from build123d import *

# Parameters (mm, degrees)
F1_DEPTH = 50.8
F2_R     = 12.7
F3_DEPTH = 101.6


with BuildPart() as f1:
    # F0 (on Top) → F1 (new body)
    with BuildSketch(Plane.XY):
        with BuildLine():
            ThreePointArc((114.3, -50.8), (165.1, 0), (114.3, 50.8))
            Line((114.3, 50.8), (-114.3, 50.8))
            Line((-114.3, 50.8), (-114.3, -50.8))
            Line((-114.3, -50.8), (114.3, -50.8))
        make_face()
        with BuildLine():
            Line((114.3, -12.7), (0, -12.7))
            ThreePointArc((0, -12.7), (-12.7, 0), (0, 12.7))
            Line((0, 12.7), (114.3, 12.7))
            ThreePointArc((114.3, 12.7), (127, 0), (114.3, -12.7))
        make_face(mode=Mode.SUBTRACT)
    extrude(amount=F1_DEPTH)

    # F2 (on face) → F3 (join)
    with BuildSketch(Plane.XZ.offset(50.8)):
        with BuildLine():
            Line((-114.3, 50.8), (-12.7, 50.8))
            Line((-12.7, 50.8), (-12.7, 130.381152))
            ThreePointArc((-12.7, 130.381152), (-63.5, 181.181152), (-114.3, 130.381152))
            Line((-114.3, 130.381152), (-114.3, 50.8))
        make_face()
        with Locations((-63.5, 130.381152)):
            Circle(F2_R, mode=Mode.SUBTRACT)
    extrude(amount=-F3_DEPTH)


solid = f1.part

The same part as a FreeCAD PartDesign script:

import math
import FreeCAD as App
import Part
import Sketcher
from FreeCAD import Vector
Q = App.Units.Quantity

doc = App.newDocument("Part")
body = doc.addObject("PartDesign::Body", "Body")

sketch1 = doc.addObject("Sketcher::SketchObject", "Sketch")
body.addObject(sketch1)
sketch1.AttachmentSupport = (doc.XY_Plane, [""])
sketch1.MapMode = "FlatFace"
sketch1.addGeometry(Part.ArcOfCircle(Part.Circle(Vector(114, 0, 0), Vector(0, 0, 1), 51), math.radians(-90), math.radians(90)), False)
sketch1.addGeometry(Part.LineSegment(Vector(114, 51, 0), Vector(-114, 51, 0)), False)
sketch1.addGeometry(Part.LineSegment(Vector(-114, 51, 0), Vector(-114, -51, 0)), False)
sketch1.addGeometry(Part.LineSegment(Vector(-114, -51, 0), Vector(114, -51, 0)), False)
sketch1.addGeometry(Part.ArcOfCircle(Part.Circle(Vector(114, 0, 0), Vector(0, 0, 1), 13), math.radians(-90), math.radians(90)), False)
sketch1.addGeometry(Part.LineSegment(Vector(114, -13, 0), Vector(0, -13, 0)), False)
sketch1.addGeometry(Part.ArcOfCircle(Part.Circle(Vector(0, 0, 0), Vector(0, 0, 1), 13), math.radians(90), math.radians(270)), False)
sketch1.addGeometry(Part.LineSegment(Vector(0, 13, 0), Vector(114, 13, 0)), False)
sketch1.addConstraint(Sketcher.Constraint("Tangent", 0, 2, 1, 1))
sketch1.addConstraint(Sketcher.Constraint("Coincident", 1, 2, 2, 1))
sketch1.addConstraint(Sketcher.Constraint("Coincident", 2, 2, 3, 1))
sketch1.addConstraint(Sketcher.Constraint("Tangent", 3, 2, 0, 1))
sketch1.addConstraint(Sketcher.Constraint("Tangent", 4, 1, 5, 1))
sketch1.addConstraint(Sketcher.Constraint("Tangent", 5, 2, 6, 2))
sketch1.addConstraint(Sketcher.Constraint("Tangent", 6, 1, 7, 1))
sketch1.addConstraint(Sketcher.Constraint("Tangent", 7, 2, 4, 2))
sketch1.addConstraint(Sketcher.Constraint("Horizontal", 1))
sketch1.addConstraint(Sketcher.Constraint("Vertical", 2))
sketch1.addConstraint(Sketcher.Constraint("Horizontal", 3))
sketch1.addConstraint(Sketcher.Constraint("Horizontal", 5))
sketch1.addConstraint(Sketcher.Constraint("Horizontal", 7))
sketch1.addConstraint(Sketcher.Constraint("Coincident", 6, 3, -1, 1))
sketch1.addConstraint(Sketcher.Constraint("Coincident", 4, 3, 0, 3))
sketch1.addConstraint(Sketcher.Constraint("Radius", 0, Q("2 in")))
sketch1.addConstraint(Sketcher.Constraint("Radius", 4, Q("0.5 in")))
sketch1.addConstraint(Sketcher.Constraint("DistanceX", 1, 2, 1, 1, Q("9 in")))
sketch1.addConstraint(Sketcher.Constraint("DistanceX", 5, 2, 5, 1, Q("4.5 in")))
pad1 = doc.addObject("PartDesign::Pad", "Pad")
body.addObject(pad1)
pad1.Profile = sketch1
pad1.Length = Q("2 in")

sketch2 = doc.addObject("Sketcher::SketchObject", "Sketch001")
body.addObject(sketch2)
sketch2.AttachmentSupport = (doc.XZ_Plane, [""])
sketch2.MapMode = "FlatFace"
sketch2.AttachmentOffset = App.Placement(Vector(0, 0, 2 * 25.4), App.Rotation())
sketch2.addGeometry(Part.LineSegment(Vector(-114, 51, 0), Vector(-13, 51, 0)), False)
sketch2.addGeometry(Part.LineSegment(Vector(-13, 51, 0), Vector(-13, 130, 0)), False)
sketch2.addGeometry(Part.ArcOfCircle(Part.Circle(Vector(-64, 130, 0), Vector(0, 0, 1), 51), math.radians(0), math.radians(180)), False)
sketch2.addGeometry(Part.LineSegment(Vector(-114, 130, 0), Vector(-114, 51, 0)), False)
sketch2.addGeometry(Part.Circle(Vector(-64, 130, 0), Vector(0, 0, 1), 13), False)
sketch2.addConstraint(Sketcher.Constraint("Coincident", 0, 2, 1, 1))
sketch2.addConstraint(Sketcher.Constraint("Tangent", 1, 2, 2, 1))
sketch2.addConstraint(Sketcher.Constraint("Tangent", 2, 2, 3, 1))
sketch2.addConstraint(Sketcher.Constraint("Coincident", 3, 2, 0, 1))
sketch2.addConstraint(Sketcher.Constraint("Horizontal", 0))
sketch2.addConstraint(Sketcher.Constraint("Vertical", 1))
sketch2.addConstraint(Sketcher.Constraint("Vertical", 3))
sketch2.addConstraint(Sketcher.Constraint("Coincident", 4, 3, 2, 3))
sketch2.addConstraint(Sketcher.Constraint("Diameter", 4, Q("1 in")))
sketch2.addConstraint(Sketcher.Constraint("Radius", 2, Q("2 in")))
sketch2.addConstraint(Sketcher.Constraint("DistanceY", -1, 1, 0, 2, Q("2 in")))
sketch2.addConstraint(Sketcher.Constraint("DistanceX", 2, 3, -1, 1, Q("2.5 in")))
sketch2.addConstraint(Sketcher.Constraint("DistanceY", 1, 1, 1, 2, Q("79.581152 mm")))
pad2 = doc.addObject("PartDesign::Pad", "Pad001")
body.addObject(pad2)
pad2.Profile = sketch2
pad2.Length = Q("4 in")
pad2.Reversed = True

doc.recompute()
